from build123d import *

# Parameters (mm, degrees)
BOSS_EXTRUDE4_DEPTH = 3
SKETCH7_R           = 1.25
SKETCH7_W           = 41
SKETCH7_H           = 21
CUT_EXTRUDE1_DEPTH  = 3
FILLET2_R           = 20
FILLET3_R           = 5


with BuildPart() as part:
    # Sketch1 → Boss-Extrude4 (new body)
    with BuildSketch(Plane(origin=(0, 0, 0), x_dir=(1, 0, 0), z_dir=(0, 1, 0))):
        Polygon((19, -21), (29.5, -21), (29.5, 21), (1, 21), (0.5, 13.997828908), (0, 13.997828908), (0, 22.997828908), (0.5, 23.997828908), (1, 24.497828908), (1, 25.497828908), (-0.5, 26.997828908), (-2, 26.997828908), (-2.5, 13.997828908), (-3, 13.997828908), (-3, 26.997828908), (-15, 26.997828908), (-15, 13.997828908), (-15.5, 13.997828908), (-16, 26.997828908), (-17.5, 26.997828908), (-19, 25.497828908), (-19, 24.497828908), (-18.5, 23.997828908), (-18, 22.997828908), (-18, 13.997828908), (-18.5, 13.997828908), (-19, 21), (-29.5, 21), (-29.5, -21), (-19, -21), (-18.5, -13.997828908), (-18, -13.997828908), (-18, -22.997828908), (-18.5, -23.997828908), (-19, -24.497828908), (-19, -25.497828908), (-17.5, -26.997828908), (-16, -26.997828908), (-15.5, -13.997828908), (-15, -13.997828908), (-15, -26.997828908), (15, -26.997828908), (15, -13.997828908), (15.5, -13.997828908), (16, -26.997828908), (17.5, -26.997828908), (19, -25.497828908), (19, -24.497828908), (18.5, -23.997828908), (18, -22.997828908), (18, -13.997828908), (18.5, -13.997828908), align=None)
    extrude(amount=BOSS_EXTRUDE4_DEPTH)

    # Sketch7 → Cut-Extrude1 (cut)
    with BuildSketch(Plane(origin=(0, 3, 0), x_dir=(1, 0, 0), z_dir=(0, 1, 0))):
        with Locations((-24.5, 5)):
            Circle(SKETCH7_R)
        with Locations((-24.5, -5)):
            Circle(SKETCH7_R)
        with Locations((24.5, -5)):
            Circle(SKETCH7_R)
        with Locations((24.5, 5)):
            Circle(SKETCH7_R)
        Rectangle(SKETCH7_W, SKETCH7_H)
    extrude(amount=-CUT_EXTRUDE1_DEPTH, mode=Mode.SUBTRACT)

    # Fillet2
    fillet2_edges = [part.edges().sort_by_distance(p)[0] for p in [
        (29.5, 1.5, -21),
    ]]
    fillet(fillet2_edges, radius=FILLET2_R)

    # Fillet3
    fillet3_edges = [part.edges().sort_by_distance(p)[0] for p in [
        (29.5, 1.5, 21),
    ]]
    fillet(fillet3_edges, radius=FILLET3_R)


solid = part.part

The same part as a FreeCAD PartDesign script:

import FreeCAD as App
import Part
import Sketcher


def edges_at(feature, points):
    """Names of the edges that pass closest to the given points."""
    edges = feature.Shape.Edges
    near = lambda p: min(range(len(edges)), key=lambda i: edges[i].distToShape(Part.Vertex(*p))[0])
    return sorted({f"Edge{near(p) + 1}" for p in points})

doc = App.newDocument("Part")
body = doc.addObject("PartDesign::Body", "Body")

sketch1 = doc.addObject("Sketcher::SketchObject", "Sketch")
body.addObject(sketch1)
sketch1.AttachmentSupport = (doc.XZ_Plane, [""])
sketch1.MapMode = "FlatFace"
sketch1.addGeometry(Part.LineSegment(App.Vector(19, 21, 0), App.Vector(29.5, 21, 0)), False)
sketch1.addGeometry(Part.LineSegment(App.Vector(29.5, 21, 0), App.Vector(29.5, -21, 0)), False)
sketch1.addGeometry(Part.LineSegment(App.Vector(29.5, -21, 0), App.Vector(1, -21, 0)), False)
sketch1.addGeometry(Part.LineSegment(App.Vector(1, -21, 0), App.Vector(0.5, -13.997829, 0)), False)
sketch1.addGeometry(Part.LineSegment(App.Vector(0.5, -13.997829, 0), App.Vector(0, -13.997829, 0)), False)
sketch1.addGeometry(Part.LineSegment(App.Vector(0, -13.997829, 0), App.Vector(0, -22.997829, 0)), False)
sketch1.addGeometry(Part.LineSegment(App.Vector(0, -22.997829, 0), App.Vector(0.5, -23.997829, 0)), False)
sketch1.addGeometry(Part.LineSegment(App.Vector(0.5, -23.997829, 0), App.Vector(1, -24.497829, 0)), False)
sketch1.addGeometry(Part.LineSegment(App.Vector(1, -24.497829, 0), App.Vector(1, -25.497829, 0)), False)
sketch1.addGeometry(Part.LineSegment(App.Vector(1, -25.497829, 0), App.Vector(-0.5, -26.997829, 0)), False)
sketch1.addGeometry(Part.LineSegment(App.Vector(-0.5, -26.997829, 0), App.Vector(-2, -26.997829, 0)), False)
sketch1.addGeometry(Part.LineSegment(App.Vector(-2, -26.997829, 0), App.Vector(-2.5, -13.997829, 0)), False)
sketch1.addGeometry(Part.LineSegment(App.Vector(-2.5, -13.997829, 0), App.Vector(-3, -13.997829, 0)), False)
sketch1.addGeometry(Part.LineSegment(App.Vector(-3, -13.997829, 0), App.Vector(-3, -26.997829, 0)), False)
sketch1.addGeometry(Part.LineSegment(App.Vector(-3, -26.997829, 0), App.Vector(-15, -26.997829, 0)), False)
sketch1.addGeometry(Part.LineSegment(App.Vector(-15, -26.997829, 0), App.Vector(-15, -13.997829, 0)), False)
sketch1.addGeometry(Part.LineSegment(App.Vector(-15, -13.997829, 0), App.Vector(-15.5, -13.997829, 0)), False)
sketch1.addGeometry(Part.LineSegment(App.Vector(-15.5, -13.997829, 0), App.Vector(-16, -26.997829, 0)), False)
sketch1.addGeometry(Part.LineSegment(App.Vector(-16, -26.997829, 0), App.Vector(-17.5, -26.997829, 0)), False)
sketch1.addGeometry(Part.LineSegment(App.Vector(-17.5, -26.997829, 0), App.Vector(-19, -25.497829, 0)), False)
sketch1.addGeometry(Part.LineSegment(App.Vector(-19, -25.497829, 0), App.Vector(-19, -24.497829, 0)), False)
sketch1.addGeometry(Part.LineSegment(App.Vector(-19, -24.497829, 0), App.Vector(-18.5, -23.997829, 0)), False)
sketch1.addGeometry(Part.LineSegment(App.Vector(-18.5, -23.997829, 0), App.Vector(-18, -22.997829, 0)), False)
sketch1.addGeometry(Part.LineSegment(App.Vector(-18, -22.997829, 0), App.Vector(-18, -13.997829, 0)), False)
sketch1.addGeometry(Part.LineSegment(App.Vector(-18, -13.997829, 0), App.Vector(-18.5, -13.997829, 0)), False)
sketch1.addGeometry(Part.LineSegment(App.Vector(-18.5, -13.997829, 0), App.Vector(-19, -21, 0)), False)
sketch1.addGeometry(Part.LineSegment(App.Vector(-19, -21, 0), App.Vector(-29.5, -21, 0)), False)
sketch1.addGeometry(Part.LineSegment(App.Vector(-29.5, -21, 0), App.Vector(-29.5, 21, 0)), False)
sketch1.addGeometry(Part.LineSegment(App.Vector(-29.5, 21, 0), App.Vector(-19, 21, 0)), False)
sketch1.addGeometry(Part.LineSegment(App.Vector(-19, 21, 0), App.Vector(-18.5, 13.997829, 0)), False)
sketch1.addGeometry(Part.LineSegment(App.Vector(-18.5, 13.997829, 0), App.Vector(-18, 13.997829, 0)), False)
sketch1.addGeometry(Part.LineSegment(App.Vector(-18, 13.997829, 0), App.Vector(-18, 22.997829, 0)), False)
sketch1.addGeometry(Part.LineSegment(App.Vector(-18, 22.997829, 0), App.Vector(-18.5, 23.997829, 0)), False)
sketch1.addGeometry(Part.LineSegment(App.Vector(-18.5, 23.997829, 0), App.Vector(-19, 24.497829, 0)), False)
sketch1.addGeometry(Part.LineSegment(App.Vector(-19, 24.497829, 0), App.Vector(-19, 25.497829, 0)), False)
sketch1.addGeometry(Part.LineSegment(App.Vector(-19, 25.497829, 0), App.Vector(-17.5, 26.997829, 0)), False)
sketch1.addGeometry(Part.LineSegment(App.Vector(-17.5, 26.997829, 0), App.Vector(-16, 26.997829, 0)), False)
sketch1.addGeometry(Part.LineSegment(App.Vector(-16, 26.997829, 0), App.Vector(-15.5, 13.997829, 0)), False)
sketch1.addGeometry(Part.LineSegment(App.Vector(-15.5, 13.997829, 0), App.Vector(-15, 13.997829, 0)), False)
sketch1.addGeometry(Part.LineSegment(App.Vector(-15, 13.997829, 0), App.Vector(-15, 26.997829, 0)), False)
sketch1.addGeometry(Part.LineSegment(App.Vector(-15, 26.997829, 0), App.Vector(15, 26.997829, 0)), False)
sketch1.addGeometry(Part.LineSegment(App.Vector(15, 26.997829, 0), App.Vector(15, 13.997829, 0)), False)
sketch1.addGeometry(Part.LineSegment(App.Vector(15, 13.997829, 0), App.Vector(15.5, 13.997829, 0)), False)
sketch1.addGeometry(Part.LineSegment(App.Vector(15.5, 13.997829, 0), App.Vector(16, 26.997829, 0)), False)
sketch1.addGeometry(Part.LineSegment(App.Vector(16, 26.997829, 0), App.Vector(17.5, 26.997829, 0)), False)
sketch1.addGeometry(Part.LineSegment(App.Vector(17.5, 26.997829, 0), App.Vector(19, 25.497829, 0)), False)
sketch1.addGeometry(Part.LineSegment(App.Vector(19, 25.497829, 0), App.Vector(19, 24.497829, 0)), False)
sketch1.addGeometry(Part.LineSegment(App.Vector(19, 24.497829, 0), App.Vector(18.5, 23.997829, 0)), False)
sketch1.addGeometry(Part.LineSegment(App.Vector(18.5, 23.997829, 0), App.Vector(18, 22.997829, 0)), False)
sketch1.addGeometry(Part.LineSegment(App.Vector(18, 22.997829, 0), App.Vector(18, 13.997829, 0)), False)
sketch1.addGeometry(Part.LineSegment(App.Vector(18, 13.997829, 0), App.Vector(18.5, 13.997829, 0)), False)
sketch1.addGeometry(Part.LineSegment(App.Vector(18.5, 13.997829, 0), App.Vector(19, 21, 0)), False)
sketch1.addConstraint(Sketcher.Constraint("Coincident", 0, 2, 1, 1))
sketch1.addConstraint(Sketcher.Constraint("Coincident", 1, 2, 2, 1))
sketch1.addConstraint(Sketcher.Constraint("Coincident", 2, 2, 3, 1))
sketch1.addConstraint(Sketcher.Constraint("Coincident", 3, 2, 4, 1))
sketch1.addConstraint(Sketcher.Constraint("Coincident", 4, 2, 5, 1))
sketch1.addConstraint(Sketcher.Constraint("Coincident", 5, 2, 6, 1))
sketch1.addConstraint(Sketcher.Constraint("Coincident", 6, 2, 7, 1))
sketch1.addConstraint(Sketcher.Constraint("Coincident", 7, 2, 8, 1))
sketch1.addConstraint(Sketcher.Constraint("Coincident", 8, 2, 9, 1))
sketch1.addConstraint(Sketcher.Constraint("Coincident", 9, 2, 10, 1))
sketch1.addConstraint(Sketcher.Constraint("Coincident", 10, 2, 11, 1))
sketch1.addConstraint(Sketcher.Constraint("Coincident", 11, 2, 12, 1))
sketch1.addConstraint(Sketcher.Constraint("Coincident", 12, 2, 13, 1))
sketch1.addConstraint(Sketcher.Constraint("Coincident", 13, 2, 14, 1))
sketch1.addConstraint(Sketcher.Constraint("Coincident", 14, 2, 15, 1))
sketch1.addConstraint(Sketcher.Constraint("Coincident", 15, 2, 16, 1))
sketch1.addConstraint(Sketcher.Constraint("Coincident", 16, 2, 17, 1))
sketch1.addConstraint(Sketcher.Constraint("Coincident", 17, 2, 18, 1))
sketch1.addConstraint(Sketcher.Constraint("Coincident", 18, 2, 19, 1))
sketch1.addConstraint(Sketcher.Constraint("Coincident", 19, 2, 20, 1))
sketch1.addConstraint(Sketcher.Constraint("Coincident", 20, 2, 21, 1))
sketch1.addConstraint(Sketcher.Constraint("Coincident", 21, 2, 22, 1))
sketch1.addConstraint(Sketcher.Constraint("Coincident", 22, 2, 23, 1))
sketch1.addConstraint(Sketcher.Constraint("Coincident", 23, 2, 24, 1))
sketch1.addConstraint(Sketcher.Constraint("Coincident", 24, 2, 25, 1))
sketch1.addConstraint(Sketcher.Constraint("Coincident", 25, 2, 26, 1))
sketch1.addConstraint(Sketcher.Constraint("Coincident", 26, 2, 27, 1))
sketch1.addConstraint(Sketcher.Constraint("Coincident", 27, 2, 28, 1))
sketch1.addConstraint(Sketcher.Constraint("Coincident", 28, 2, 29, 1))
sketch1.addConstraint(Sketcher.Constraint("Coincident", 29, 2, 30, 1))
sketch1.addConstraint(Sketcher.Constraint("Coincident", 30, 2, 31, 1))
sketch1.addConstraint(Sketcher.Constraint("Coincident", 31, 2, 32, 1))
sketch1.addConstraint(Sketcher.Constraint("Coincident", 32, 2, 33, 1))
sketch1.addConstraint(Sketcher.Constraint("Coincident", 33, 2, 34, 1))
sketch1.addConstraint(Sketcher.Constraint("Coincident", 34, 2, 35, 1))
sketch1.addConstraint(Sketcher.Constraint("Coincident", 35, 2, 36, 1))
sketch1.addConstraint(Sketcher.Constraint("Coincident", 36, 2, 37, 1))
sketch1.addConstraint(Sketcher.Constraint("Coincident", 37, 2, 38, 1))
sketch1.addConstraint(Sketcher.Constraint("Coincident", 38, 2, 39, 1))
sketch1.addConstraint(Sketcher.Constraint("Coincident", 39, 2, 40, 1))
sketch1.addConstraint(Sketcher.Constraint("Coincident", 40, 2, 41, 1))
sketch1.addConstraint(Sketcher.Constraint("Coincident", 41, 2, 42, 1))
sketch1.addConstraint(Sketcher.Constraint("Coincident", 42, 2, 43, 1))
sketch1.addConstraint(Sketcher.Constraint("Coincident", 43, 2, 44, 1))
sketch1.addConstraint(Sketcher.Constraint("Coincident", 44, 2, 45, 1))
sketch1.addConstraint(Sketcher.Constraint("Coincident", 45, 2, 46, 1))
sketch1.addConstraint(Sketcher.Constraint("Coincident", 46, 2, 47, 1))
sketch1.addConstraint(Sketcher.Constraint("Coincident", 47, 2, 48, 1))
sketch1.addConstraint(Sketcher.Constraint("Coincident", 48, 2, 49, 1))
sketch1.addConstraint(Sketcher.Constraint("Coincident", 49, 2, 50, 1))
sketch1.addConstraint(Sketcher.Constraint("Coincident", 50, 2, 51, 1))
sketch1.addConstraint(Sketcher.Constraint("Coincident", 51, 2, 0, 1))
sketch1.addConstraint(Sketcher.Constraint("Horizontal", 0))
sketch1.addConstraint(Sketcher.Constraint("Vertical", 1))
sketch1.addConstraint(Sketcher.Constraint("Horizontal", 2))
sketch1.addConstraint(Sketcher.Constraint("Horizontal", 4))
sketch1.addConstraint(Sketcher.Constraint("Vertical", 5))
sketch1.addConstraint(Sketcher.Constraint("Vertical", 8))
sketch1.addConstraint(Sketcher.Constraint("Horizontal", 10))
sketch1.addConstraint(Sketcher.Constraint("Horizontal", 12))
sketch1.addConstraint(Sketcher.Constraint("Vertical", 13))
sketch1.addConstraint(Sketcher.Constraint("Horizontal", 14))
sketch1.addConstraint(Sketcher.Constraint("Vertical", 15))
sketch1.addConstraint(Sketcher.Constraint("Horizontal", 16))
sketch1.addConstraint(Sketcher.Constraint("Horizontal", 18))
sketch1.addConstraint(Sketcher.Constraint("Vertical", 20))
sketch1.addConstraint(Sketcher.Constraint("Vertical", 23))
sketch1.addConstraint(Sketcher.Constraint("Horizontal", 24))
sketch1.addConstraint(Sketcher.Constraint("Horizontal", 26))
sketch1.addConstraint(Sketcher.Constraint("Vertical", 27))
sketch1.addConstraint(Sketcher.Constraint("Horizontal", 28))
sketch1.addConstraint(Sketcher.Constraint("Horizontal", 30))
sketch1.addConstraint(Sketcher.Constraint("Vertical", 31))
sketch1.addConstraint(Sketcher.Constraint("Vertical", 34))
sketch1.addConstraint(Sketcher.Constraint("Horizontal", 36))
sketch1.addConstraint(Sketcher.Constraint("Horizontal", 38))
sketch1.addConstraint(Sketcher.Constraint("Vertical", 39))
sketch1.addConstraint(Sketcher.Constraint("Horizontal", 40))
sketch1.addConstraint(Sketcher.Constraint("Vertical", 41))
sketch1.addConstraint(Sketcher.Constraint("Horizontal", 42))
sketch1.addConstraint(Sketcher.Constraint("Horizontal", 44))
sketch1.addConstraint(Sketcher.Constraint("Vertical", 46))
sketch1.addConstraint(Sketcher.Constraint("Vertical", 49))
sketch1.addConstraint(Sketcher.Constraint("Horizontal", 50))
sketch1.addConstraint(Sketcher.Constraint("Symmetric", 0, 2, 26, 2, -1, 1))
sketch1.addConstraint(Sketcher.Constraint("Symmetric", 14, 2, 40, 2, -1, 1))
sketch1.addConstraint(Sketcher.Constraint("Symmetric", 16, 2, 42, 2, -1, 1))
sketch1.addConstraint(Sketcher.Constraint("Symmetric", 17, 2, 43, 2, -1, 1))
sketch1.addConstraint(Sketcher.Constraint("Symmetric", 19, 2, 45, 2, -1, 1))
sketch1.addConstraint(Sketcher.Constraint("Symmetric", 21, 2, 47, 2, -1, 1))
sketch1.addConstraint(Sketcher.Constraint("Symmetric", 22, 2, 48, 2, -1, 1))
sketch1.addConstraint(Sketcher.Constraint("Symmetric", 24, 2, 50, 2, -1, 1))
sketch1.addConstraint(Sketcher.Constraint("Symmetric", 38, 2, 41, 2, -2))
sketch1.addConstraint(Sketcher.Constraint("Symmetric", 36, 2, 43, 2, -2))
sketch1.addConstraint(Sketcher.Constraint("Symmetric", 34, 2, 45, 2, -2))
sketch1.addConstraint(Sketcher.Constraint("Symmetric", 32, 2, 47, 2, -2))
sketch1.addConstraint(Sketcher.Constraint("Symmetric", 31, 2, 48, 2, -2))
sketch1.addConstraint(Sketcher.Constraint("Symmetric", 29, 2, 50, 2, -2))
sketch1.addConstraint(Sketcher.Constraint("Symmetric", 28, 2, 51, 2, -2))
sketch1.addConstraint(Sketcher.Constraint("PointOnObject", 4, 2, -2))
sketch1.addConstraint(Sketcher.Constraint("Perpendicular", 7, 9))
sketch1.addConstraint(Sketcher.Constraint("Perpendicular", 9, 19))
sketch1.addConstraint(Sketcher.Constraint("Perpendicular", 19, 21))
sketch1.addConstraint(Sketcher.Constraint("Parallel", 3, 29))
sketch1.addConstraint(Sketcher.Constraint("Parallel", 6, 32))
sketch1.addConstraint(Sketcher.Constraint("Perpendicular", 21, 33))
sketch1.addConstraint(Sketcher.Constraint("Perpendicular", 33, 35))
sketch1.addConstraint(Sketcher.Constraint("Parallel", 11, 37))
sketch1.addConstraint(Sketcher.Constraint("Perpendicular", 35, 45))
sketch1.addConstraint(Sketcher.Constraint("Perpendicular", 45, 47))
sketch1.addConstraint(Sketcher.Constraint("Parallel", 25, 51))
sketch1.addConstraint(Sketcher.Constraint("Horizontal", 4, 2, 11, 2))
sketch1.addConstraint(Sketcher.Constraint("Horizontal", 10, 2, 13, 2))
sketch1.addConstraint(Sketcher.Constraint("Horizontal", 12, 2, 15, 2))
sketch1.addConstraint(Sketcher.Constraint("Horizontal", 14, 2, 17, 2))
sketch1.addConstraint(Sketcher.Constraint("Horizontal", 8, 2, 19, 2))
sketch1.addConstraint(Sketcher.Constraint("Horizontal", 7, 2, 20, 2))
sketch1.addConstraint(Sketcher.Constraint("Horizontal", 6, 2, 21, 2))
sketch1.addConstraint(Sketcher.Constraint("Horizontal", 5, 2, 22, 2))
sketch1.addConstraint(Sketcher.Constraint("Horizontal", 16, 2, 23, 2))
sketch1.addConstraint(Sketcher.Constraint("Horizontal", 2, 2, 25, 2))
sketch1.addConstraint(Sketcher.Constraint("Horizontal", 33, 2, 46, 2))
sketch1.addConstraint(Sketcher.Constraint("Vertical", 3, 2, 6, 2))
sketch1.addConstraint(Sketcher.Constraint("Vertical", 2, 2, 7, 2))
sketch1.addConstraint(Sketcher.Constraint("Vertical", 21, 2, 24, 2))
sketch1.addConstraint(Sketcher.Constraint("Vertical", 16, 2, 37, 2))
sketch1.addConstraint(Sketcher.Constraint("Equal", 4, 12))
sketch1.addConstraint(Sketcher.Constraint("Equal", 12, 16))
sketch1.addConstraint(Sketcher.Constraint("Equal", 10, 18))
sketch1.addConstraint(Sketcher.Constraint("DistanceX", 14, 2, 14, 1, 12.0))
sketch1.addConstraint(Sketcher.Constraint("DistanceX", 40, 1, 40, 2, 30.0))
sketch1.addConstraint(Sketcher.Constraint("DistanceY", 1, 2, 1, 1, 42.0))
sketch1.addConstraint(Sketcher.Constraint("DistanceY", 5, 2, 5, 1, 9.0))
sketch1.addConstraint(Sketcher.Constraint("DistanceY", 8, 2, 8, 1, 1.0))
sketch1.addConstraint(Sketcher.Constraint("DistanceY", 13, 2, 13, 1, 13.0))
sketch1.addConstraint(Sketcher.Constraint("DistanceX", 0, 1, 0, 2, 10.5))
sketch1.addConstraint(Sketcher.Constraint("DistanceX", 4, 2, 4, 1, 0.5))
sketch1.addConstraint(Sketcher.Constraint("DistanceX", 10, 2, 10, 1, 1.5))
sketch1.addConstraint(Sketcher.Constraint("DistanceX", -1, 1, 2, 2, 1.0))
sketch1.addConstraint(Sketcher.Constraint("DistanceX", 10, 2, -1, 1, 2.0))
sketch1.addConstraint(Sketcher.Constraint("Distance", 3, 7.02))
pad1 = doc.addObject("PartDesign::Pad", "Pad")
body.addObject(pad1)
pad1.Profile = sketch1
pad1.Length = 3
pad1.Reversed = True

sketch2 = doc.addObject("Sketcher::SketchObject", "Sketch001")
body.addObject(sketch2)
sketch2.AttachmentSupport = (doc.XZ_Plane, [""])
sketch2.MapMode = "FlatFace"
sketch2.AttachmentOffset = App.Placement(App.Vector(0, 0, -3), App.Rotation())
sketch2.addGeometry(Part.Circle(App.Vector(-24.5, -5, 0), App.Vector(0, 0, 1), 1.25), False)
sketch2.addGeometry(Part.Circle(App.Vector(-24.5, 5, 0), App.Vector(0, 0, 1), 1.25), False)
sketch2.addGeometry(Part.Circle(App.Vector(24.5, 5, 0), App.Vector(0, 0, 1), 1.25), False)
sketch2.addGeometry(Part.Circle(App.Vector(24.5, -5, 0), App.Vector(0, 0, 1), 1.25), False)
sketch2.addGeometry(Part.LineSegment(App.Vector(-20.5, -10.5, 0), App.Vector(-20.5, 10.5, 0)), False)
sketch2.addGeometry(Part.LineSegment(App.Vector(-20.5, 10.5, 0), App.Vector(20.5, 10.5, 0)), False)
sketch2.addGeometry(Part.LineSegment(App.Vector(20.5, 10.5, 0), App.Vector(20.5, -10.5, 0)), False)
sketch2.addGeometry(Part.LineSegment(App.Vector(20.5, -10.5, 0), App.Vector(-20.5, -10.5, 0)), False)
sketch2.addConstraint(Sketcher.Constraint("Coincident", 4, 2, 5, 1))
sketch2.addConstraint(Sketcher.Constraint("Coincident", 5, 2, 6, 1))
sketch2.addConstraint(Sketcher.Constraint("Coincident", 6, 2, 7, 1))
sketch2.addConstraint(Sketcher.Constraint("Coincident", 7, 2, 4, 1))
sketch2.addConstraint(Sketcher.Constraint("Vertical", 4))
sketch2.addConstraint(Sketcher.Constraint("Horizontal", 5))
sketch2.addConstraint(Sketcher.Constraint("Vertical", 6))
sketch2.addConstraint(Sketcher.Constraint("Horizontal", 7))
sketch2.addConstraint(Sketcher.Constraint("Equal", 0, 1))
sketch2.addConstraint(Sketcher.Constraint("Equal", 1, 2))
sketch2.addConstraint(Sketcher.Constraint("Equal", 2, 3))
sketch2.addConstraint(Sketcher.Constraint("Symmetric", 0, 3, 2, 3, -1, 1))
sketch2.addConstraint(Sketcher.Constraint("Symmetric", 1, 3, 3, 3, -1, 1))
sketch2.addConstraint(Sketcher.Constraint("Symmetric", 4, 2, 6, 2, -1, 1))
sketch2.addConstraint(Sketcher.Constraint("Symmetric", 1, 3, 2, 3, -2))
sketch2.addConstraint(Sketcher.Constraint("Diameter", 0, 2.5))
sketch2.addConstraint(Sketcher.Constraint("DistanceX", 5, 1, 5, 2, 41.0))
sketch2.addConstraint(Sketcher.Constraint("DistanceY", 4, 1, 4, 2, 21.0))
sketch2.addConstraint(Sketcher.Constraint("DistanceY", 0, 3, -1, 1, 5.0))
sketch2.addConstraint(Sketcher.Constraint("DistanceX", 1, 3, 2, 3, 49.0))
pocket1 = doc.addObject("PartDesign::Pocket", "Pocket")
body.addObject(pocket1)
pocket1.Profile = sketch2
pocket1.Length = 3
pocket1.Reversed = True
doc.recompute()

fillet = doc.addObject("PartDesign::Fillet", "Fillet")
body.addObject(fillet)
fillet.Base = (pocket1, edges_at(pocket1, [(29.5, 1.5, -21)]))
fillet.Radius = 20
doc.recompute()

fillet2 = doc.addObject("PartDesign::Fillet", "Fillet001")
body.addObject(fillet2)
fillet2.Base = (fillet, edges_at(fillet, [(29.5, 1.5, 21)]))
fillet2.Radius = 5

doc.recompute()
